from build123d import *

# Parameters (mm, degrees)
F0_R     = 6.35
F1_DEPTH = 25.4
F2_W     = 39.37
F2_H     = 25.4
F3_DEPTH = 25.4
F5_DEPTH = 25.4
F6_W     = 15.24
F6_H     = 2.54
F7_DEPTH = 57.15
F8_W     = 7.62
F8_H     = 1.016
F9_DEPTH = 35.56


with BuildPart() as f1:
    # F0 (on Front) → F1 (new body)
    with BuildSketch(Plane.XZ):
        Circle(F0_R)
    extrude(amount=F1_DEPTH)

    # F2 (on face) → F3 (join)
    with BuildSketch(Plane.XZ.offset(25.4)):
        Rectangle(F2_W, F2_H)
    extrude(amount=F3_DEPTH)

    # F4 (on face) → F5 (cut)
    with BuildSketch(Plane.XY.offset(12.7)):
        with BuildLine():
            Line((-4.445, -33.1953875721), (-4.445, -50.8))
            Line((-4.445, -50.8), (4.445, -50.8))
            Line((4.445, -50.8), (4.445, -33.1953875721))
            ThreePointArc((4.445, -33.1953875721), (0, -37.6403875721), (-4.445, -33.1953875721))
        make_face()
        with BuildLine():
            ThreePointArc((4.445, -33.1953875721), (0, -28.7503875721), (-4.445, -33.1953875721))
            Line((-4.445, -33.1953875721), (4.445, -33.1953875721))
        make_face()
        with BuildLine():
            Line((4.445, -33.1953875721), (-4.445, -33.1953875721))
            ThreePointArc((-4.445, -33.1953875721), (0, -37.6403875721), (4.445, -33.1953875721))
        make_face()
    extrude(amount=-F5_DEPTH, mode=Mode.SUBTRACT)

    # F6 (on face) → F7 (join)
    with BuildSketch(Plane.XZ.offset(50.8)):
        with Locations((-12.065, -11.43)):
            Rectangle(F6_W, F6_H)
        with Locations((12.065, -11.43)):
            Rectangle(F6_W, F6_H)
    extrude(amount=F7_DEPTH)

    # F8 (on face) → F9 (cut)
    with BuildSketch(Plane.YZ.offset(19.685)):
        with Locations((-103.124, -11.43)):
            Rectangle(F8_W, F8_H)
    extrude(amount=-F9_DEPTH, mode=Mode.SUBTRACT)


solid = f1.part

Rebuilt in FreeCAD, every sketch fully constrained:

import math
import FreeCAD as App
import Part
import Sketcher

V = App.Vector
Q = App.Units.Quantity


def add_polygon(sketch, points):
    """Adds a closed chain of lines whose ends are joined by coincident constraints."""
    first, n = sketch.GeometryCount, len(points)
    for a, b in zip(points, points[1:] + points[:1]):
        sketch.addGeometry(Part.LineSegment(App.Vector(*a, 0), App.Vector(*b, 0)), False)
    for i in range(n):
        sketch.addConstraint(Sketcher.Constraint("Coincident", first + i, 2, first + (i + 1) % n, 1))

doc = App.newDocument("Part")
params = doc.addObject("Spreadsheet::Sheet", "Params")
for row, (alias, value) in enumerate([
    ("sketch1_diameter", "0.5 in"),
    ("pad1_length", "1 in"),
    ("sketch2_height", "1 in"),
    ("sketch2_width", "1.55 in"),
    ("pad2_length", "1 in"),
    ("sketch3_radius", "0.175 in"),
    ("pocket1_length", "1 in"),
    ("sketch4_width", "0.6 in"),
    ("sketch4_height", "0.1 in"),
    ("pad3_length", "2.25 in"),
    ("sketch5_width", "0.3 in"),
    ("sketch5_height", "0.04 in"),
    ("pocket2_length", "1.4 in"),
], start=1):
    params.set(f"A{row}", alias)
    params.set(f"B{row}", "=" + value)
    params.setAlias(f"B{row}", alias)

body = doc.addObject("PartDesign::Body", "Body")

# Sketch on XZ plane
sketch1 = doc.addObject("Sketcher::SketchObject", "Sketch")
body.addObject(sketch1)
sketch1.AttachmentSupport = (doc.XZ_Plane, [""])
sketch1.MapMode = "FlatFace"
sketch1.addGeometry(Part.Circle(V(0, 0, 0), V(0, 0, 1), 6), False)
sketch1.addConstraint(Sketcher.Constraint("Coincident", 0, 3, -1, 1))
sketch1.addConstraint(Sketcher.Constraint("Diameter", 0, Q("0.5 in")))
sketch1.setExpression("Constraints[1]", "Params.sketch1_diameter")
pad1 = doc.addObject("PartDesign::Pad", "Pad")
body.addObject(pad1)
pad1.Profile = sketch1
pad1.setExpression("Length", "Params.pad1_length")

# Sketch on XZ plane
sketch2 = doc.addObject("Sketcher::SketchObject", "Sketch001")
body.addObject(sketch2)
sketch2.AttachmentSupport = (doc.XZ_Plane, [""])
sketch2.MapMode = "FlatFace"
sketch2.AttachmentOffset = App.Placement(V(0, 0, 1 * 25.4), App.Rotation())
add_polygon(sketch2, [(-20, 13), (-20, -13), (20, -13), (20, 13)])  # lines 0-3
sketch2.addConstraint(Sketcher.Constraint("Vertical", 0))
sketch2.addConstraint(Sketcher.Constraint("Horizontal", 1))
sketch2.addConstraint(Sketcher.Constraint("Vertical", 2))
sketch2.addConstraint(Sketcher.Constraint("Horizontal", 3))
sketch2.addConstraint(Sketcher.Constraint("Symmetric", 0, 2, 2, 2, -1, 1))
sketch2.addConstraint(Sketcher.Constraint("DistanceY", 0, 2, 0, 1, Q("1 in")))
sketch2.addConstraint(Sketcher.Constraint("DistanceX", 1, 1, 1, 2, Q("1.55 in")))
sketch2.setExpression("Constraints[9]", "Params.sketch2_height")
sketch2.setExpression("Constraints[10]", "Params.sketch2_width")
pad2 = doc.addObject("PartDesign::Pad", "Pad001")
body.addObject(pad2)
pad2.Profile = sketch2
pad2.setExpression("Length", "Params.pad2_length")

# Sketch on XY plane
sketch3 = doc.addObject("Sketcher::SketchObject", "Sketch002")
body.addObject(sketch3)
sketch3.AttachmentSupport = (doc.XY_Plane, [""])
sketch3.MapMode = "FlatFace"
sketch3.AttachmentOffset = App.Placement(V(0, 0, 0.5 * 25.4), App.Rotation())
sketch3.addGeometry(Part.LineSegment(V(-4.4, -33.2, 0), V(-4.4, -50.8, 0)), False)
sketch3.addGeometry(Part.LineSegment(V(-4.4, -50.8, 0), V(4.4, -50.8, 0)), False)
sketch3.addGeometry(Part.LineSegment(V(4.4, -50.8, 0), V(4.4, -33.2, 0)), False)
sketch3.addGeometry(Part.ArcOfCircle(Part.Circle(V(0, -33.2, 0), V(0, 0, 1), 4.4), math.radians(0), math.radians(180)), False)
sketch3.addConstraint(Sketcher.Constraint("Coincident", 0, 2, 1, 1))
sketch3.addConstraint(Sketcher.Constraint("Coincident", 1, 2, 2, 1))
sketch3.addConstraint(Sketcher.Constraint("Tangent", 2, 2, 3, 1))
sketch3.addConstraint(Sketcher.Constraint("Tangent", 3, 2, 0, 1))
sketch3.addConstraint(Sketcher.Constraint("Vertical", 0))
sketch3.addConstraint(Sketcher.Constraint("Horizontal", 1))
sketch3.addConstraint(Sketcher.Constraint("Vertical", 2))
sketch3.addConstraint(Sketcher.Constraint("PointOnObject", 3, 3, -2))
sketch3.addConstraint(Sketcher.Constraint("DistanceY", 0, 2, -1, 1, Q("2 in")))
sketch3.addConstraint(Sketcher.Constraint("Radius", 3, Q("0.175 in")))
sketch3.addConstraint(Sketcher.Constraint("DistanceY", 0, 2, 0, 1, Q("17.604612 mm")))
sketch3.setExpression("Constraints[9]", "Params.sketch3_radius")
pocket1 = doc.addObject("PartDesign::Pocket", "Pocket")
body.addObject(pocket1)
pocket1.Profile = sketch3
pocket1.setExpression("Length", "Params.pocket1_length")

# Sketch on XZ plane
sketch4 = doc.addObject("Sketcher::SketchObject", "Sketch003")
body.addObject(sketch4)
sketch4.AttachmentSupport = (doc.XZ_Plane, [""])
sketch4.MapMode = "FlatFace"
sketch4.AttachmentOffset = App.Placement(V(0, 0, 2 * 25.4), App.Rotation())
add_polygon(sketch4, [(-19.7, -10.2), (-19.7, -12.7), (-4.4, -12.7), (-4.4, -10.2)])  # lines 0-3
add_polygon(sketch4, [(4.4, -10.2), (4.4, -12.7), (19.7, -12.7), (19.7, -10.2)])  # lines 4-7
sketch4.addConstraint(Sketcher.Constraint("Vertical", 0))
sketch4.addConstraint(Sketcher.Constraint("Horizontal", 1))
sketch4.addConstraint(Sketcher.Constraint("Vertical", 2))
sketch4.addConstraint(Sketcher.Constraint("Horizontal", 3))
sketch4.addConstraint(Sketcher.Constraint("Vertical", 4))
sketch4.addConstraint(Sketcher.Constraint("Horizontal", 5))
sketch4.addConstraint(Sketcher.Constraint("Vertical", 6))
sketch4.addConstraint(Sketcher.Constraint("Horizontal", 7))
sketch4.addConstraint(Sketcher.Constraint("Symmetric", 1, 2, 4, 2, -2))
sketch4.addConstraint(Sketcher.Constraint("Symmetric", 3, 2, 6, 2, -2))
sketch4.addConstraint(Sketcher.Constraint("DistanceX", 1, 1, 1, 2, Q("0.6 in")))
sketch4.addConstraint(Sketcher.Constraint("DistanceY", 0, 2, 0, 1, Q("0.1 in")))
sketch4.addConstraint(Sketcher.Constraint("DistanceY", 0, 2, -1, 1, Q("0.5 in")))
sketch4.addConstraint(Sketcher.Constraint("DistanceX", 1, 2, 4, 2, Q("0.35 in")))
sketch4.setExpression("Constraints[18]", "Params.sketch4_width")
sketch4.setExpression("Constraints[19]", "Params.sketch4_height")
pad3 = doc.addObject("PartDesign::Pad", "Pad002")
body.addObject(pad3)
pad3.Profile = sketch4
pad3.setExpression("Length", "Params.pad3_length")

# Sketch on YZ plane
sketch5 = doc.addObject("Sketcher::SketchObject", "Sketch004")
body.addObject(sketch5)
sketch5.AttachmentSupport = (doc.YZ_Plane, [""])
sketch5.MapMode = "FlatFace"
sketch5.AttachmentOffset = App.Placement(V(0, 0, 0.775 * 25.4), App.Rotation())
add_polygon(sketch5, [(-106.9, -10.9), (-106.9, -11.9), (-99.3, -11.9), (-99.3, -10.9)])  # lines 0-3
sketch5.addConstraint(Sketcher.Constraint("Vertical", 0))
sketch5.addConstraint(Sketcher.Constraint("Horizontal", 1))
sketch5.addConstraint(Sketcher.Constraint("Vertical", 2))
sketch5.addConstraint(Sketcher.Constraint("Horizontal", 3))
sketch5.addConstraint(Sketcher.Constraint("DistanceX", 1, 1, 1, 2, Q("0.3 in")))
sketch5.addConstraint(Sketcher.Constraint("DistanceY", 0, 2, 0, 1, Q("0.04 in")))
sketch5.addConstraint(Sketcher.Constraint("DistanceX", 0, 2, -1, 1, Q("4.21 in")))
sketch5.addConstraint(Sketcher.Constraint("DistanceY", 0, 2, -1, 1, Q("0.47 in")))
sketch5.setExpression("Constraints[8]", "Params.sketch5_width")
sketch5.setExpression("Constraints[9]", "Params.sketch5_height")
pocket2 = doc.addObject("PartDesign::Pocket", "Pocket001")
body.addObject(pocket2)
pocket2.Profile = sketch5
pocket2.setExpression("Length", "Params.pocket2_length")

doc.recompute()
